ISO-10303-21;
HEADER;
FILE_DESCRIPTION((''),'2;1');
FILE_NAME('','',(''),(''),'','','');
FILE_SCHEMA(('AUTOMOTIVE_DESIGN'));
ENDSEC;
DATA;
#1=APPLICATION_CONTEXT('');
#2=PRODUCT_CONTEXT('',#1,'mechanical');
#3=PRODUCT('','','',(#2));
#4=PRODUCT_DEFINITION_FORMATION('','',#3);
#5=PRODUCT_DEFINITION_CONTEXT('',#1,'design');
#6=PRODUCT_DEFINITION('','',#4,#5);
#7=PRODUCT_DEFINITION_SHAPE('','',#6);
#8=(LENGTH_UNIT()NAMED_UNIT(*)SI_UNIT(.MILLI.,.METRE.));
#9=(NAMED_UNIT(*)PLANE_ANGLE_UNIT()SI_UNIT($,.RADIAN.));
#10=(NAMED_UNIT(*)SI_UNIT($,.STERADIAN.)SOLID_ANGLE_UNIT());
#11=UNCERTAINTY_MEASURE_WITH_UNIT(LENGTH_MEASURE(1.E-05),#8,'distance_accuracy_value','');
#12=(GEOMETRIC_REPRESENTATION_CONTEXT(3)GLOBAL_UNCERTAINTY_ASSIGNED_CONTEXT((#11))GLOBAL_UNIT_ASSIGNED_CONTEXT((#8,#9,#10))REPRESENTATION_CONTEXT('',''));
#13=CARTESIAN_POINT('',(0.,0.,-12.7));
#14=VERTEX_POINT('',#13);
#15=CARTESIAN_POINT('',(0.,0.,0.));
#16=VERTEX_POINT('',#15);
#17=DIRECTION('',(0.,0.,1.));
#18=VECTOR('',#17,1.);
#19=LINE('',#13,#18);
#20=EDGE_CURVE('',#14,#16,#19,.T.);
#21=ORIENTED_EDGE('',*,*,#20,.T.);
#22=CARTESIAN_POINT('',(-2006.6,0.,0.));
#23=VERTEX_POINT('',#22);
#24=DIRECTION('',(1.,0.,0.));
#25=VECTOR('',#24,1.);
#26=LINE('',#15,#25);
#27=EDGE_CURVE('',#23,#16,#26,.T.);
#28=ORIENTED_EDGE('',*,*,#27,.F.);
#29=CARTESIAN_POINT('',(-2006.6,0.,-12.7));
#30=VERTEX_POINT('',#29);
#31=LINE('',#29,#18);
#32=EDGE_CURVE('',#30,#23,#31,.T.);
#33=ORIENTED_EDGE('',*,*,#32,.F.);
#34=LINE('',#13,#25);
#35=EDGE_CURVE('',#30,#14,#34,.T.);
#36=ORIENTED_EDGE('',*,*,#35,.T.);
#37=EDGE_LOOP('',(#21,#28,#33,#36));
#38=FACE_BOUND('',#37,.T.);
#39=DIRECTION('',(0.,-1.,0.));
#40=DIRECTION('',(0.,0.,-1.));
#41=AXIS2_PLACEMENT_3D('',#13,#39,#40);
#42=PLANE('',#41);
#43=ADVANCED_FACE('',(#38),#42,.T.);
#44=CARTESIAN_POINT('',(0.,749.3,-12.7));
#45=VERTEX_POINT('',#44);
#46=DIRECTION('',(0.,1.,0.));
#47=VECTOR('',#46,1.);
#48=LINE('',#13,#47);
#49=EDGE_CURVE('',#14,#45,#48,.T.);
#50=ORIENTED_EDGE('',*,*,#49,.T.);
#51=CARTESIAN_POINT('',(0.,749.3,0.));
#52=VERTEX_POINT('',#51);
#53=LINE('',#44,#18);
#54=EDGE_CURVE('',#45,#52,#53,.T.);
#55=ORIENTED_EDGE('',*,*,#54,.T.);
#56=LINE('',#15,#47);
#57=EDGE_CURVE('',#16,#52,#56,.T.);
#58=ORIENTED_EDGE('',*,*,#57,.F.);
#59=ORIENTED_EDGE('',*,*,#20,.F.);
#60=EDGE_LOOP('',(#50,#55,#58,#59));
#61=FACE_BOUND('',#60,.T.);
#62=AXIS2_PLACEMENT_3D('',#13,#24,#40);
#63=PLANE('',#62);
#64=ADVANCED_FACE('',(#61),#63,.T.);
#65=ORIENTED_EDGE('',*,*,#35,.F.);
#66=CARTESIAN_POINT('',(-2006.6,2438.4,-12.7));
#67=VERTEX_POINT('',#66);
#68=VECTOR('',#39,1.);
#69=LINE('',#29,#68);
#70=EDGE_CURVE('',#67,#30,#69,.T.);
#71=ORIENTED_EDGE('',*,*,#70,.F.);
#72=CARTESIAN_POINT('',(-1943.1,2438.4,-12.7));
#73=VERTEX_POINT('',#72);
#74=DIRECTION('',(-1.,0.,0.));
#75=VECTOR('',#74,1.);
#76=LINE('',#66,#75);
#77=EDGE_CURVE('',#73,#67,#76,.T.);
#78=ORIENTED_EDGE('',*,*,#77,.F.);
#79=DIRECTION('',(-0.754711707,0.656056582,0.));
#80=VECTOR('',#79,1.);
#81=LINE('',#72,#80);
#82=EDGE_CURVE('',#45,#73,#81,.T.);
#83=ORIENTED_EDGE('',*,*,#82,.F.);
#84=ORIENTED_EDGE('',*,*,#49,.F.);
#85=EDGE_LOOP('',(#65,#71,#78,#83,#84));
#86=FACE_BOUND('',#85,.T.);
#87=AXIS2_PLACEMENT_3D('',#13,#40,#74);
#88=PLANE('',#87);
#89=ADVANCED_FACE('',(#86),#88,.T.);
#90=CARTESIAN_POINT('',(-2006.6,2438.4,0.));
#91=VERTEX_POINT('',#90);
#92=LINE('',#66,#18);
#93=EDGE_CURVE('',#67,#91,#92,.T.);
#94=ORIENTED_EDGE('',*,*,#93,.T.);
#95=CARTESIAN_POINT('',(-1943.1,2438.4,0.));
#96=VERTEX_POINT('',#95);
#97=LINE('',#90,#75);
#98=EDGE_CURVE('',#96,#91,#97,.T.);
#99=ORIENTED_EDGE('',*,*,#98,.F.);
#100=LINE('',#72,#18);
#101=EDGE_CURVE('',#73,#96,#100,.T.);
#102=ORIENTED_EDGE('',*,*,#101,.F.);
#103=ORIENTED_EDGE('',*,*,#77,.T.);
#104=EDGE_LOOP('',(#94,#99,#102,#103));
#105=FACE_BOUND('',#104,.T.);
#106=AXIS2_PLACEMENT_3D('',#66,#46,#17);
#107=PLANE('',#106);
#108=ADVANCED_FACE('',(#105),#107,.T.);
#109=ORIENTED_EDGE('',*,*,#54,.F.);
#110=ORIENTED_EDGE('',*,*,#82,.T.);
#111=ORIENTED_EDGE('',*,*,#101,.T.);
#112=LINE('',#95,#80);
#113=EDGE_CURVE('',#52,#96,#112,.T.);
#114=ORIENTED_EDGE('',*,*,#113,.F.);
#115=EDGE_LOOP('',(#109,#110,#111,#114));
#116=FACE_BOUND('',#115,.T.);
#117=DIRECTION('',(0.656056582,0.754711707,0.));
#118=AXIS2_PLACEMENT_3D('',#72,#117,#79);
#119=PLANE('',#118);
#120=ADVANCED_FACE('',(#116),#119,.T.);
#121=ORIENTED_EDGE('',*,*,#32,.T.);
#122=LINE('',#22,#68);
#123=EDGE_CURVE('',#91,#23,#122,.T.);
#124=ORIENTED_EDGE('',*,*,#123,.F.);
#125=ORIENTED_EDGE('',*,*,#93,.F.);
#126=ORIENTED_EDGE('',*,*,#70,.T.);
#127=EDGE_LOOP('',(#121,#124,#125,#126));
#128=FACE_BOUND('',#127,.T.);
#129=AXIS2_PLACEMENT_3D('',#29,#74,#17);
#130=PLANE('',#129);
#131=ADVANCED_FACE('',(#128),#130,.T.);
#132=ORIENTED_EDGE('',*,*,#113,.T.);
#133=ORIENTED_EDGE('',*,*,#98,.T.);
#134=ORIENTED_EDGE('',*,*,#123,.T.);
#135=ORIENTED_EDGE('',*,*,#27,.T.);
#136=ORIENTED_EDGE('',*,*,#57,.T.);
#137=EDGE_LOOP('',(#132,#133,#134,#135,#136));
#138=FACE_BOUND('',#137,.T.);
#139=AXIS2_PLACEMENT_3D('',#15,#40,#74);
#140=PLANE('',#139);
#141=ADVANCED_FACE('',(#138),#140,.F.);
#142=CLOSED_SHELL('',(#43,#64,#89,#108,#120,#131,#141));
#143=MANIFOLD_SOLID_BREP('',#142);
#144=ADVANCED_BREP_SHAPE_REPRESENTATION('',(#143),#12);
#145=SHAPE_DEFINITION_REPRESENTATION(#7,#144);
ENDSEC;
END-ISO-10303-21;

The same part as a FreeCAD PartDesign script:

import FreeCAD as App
import Part
import Sketcher
Q = App.Units.Quantity

doc = App.newDocument("Part")
body = doc.addObject("PartDesign::Body", "Body")

sketch1 = doc.addObject("Sketcher::SketchObject", "Sketch")
body.addObject(sketch1)
sketch1.AttachmentSupport = (doc.XY_Plane, [""])
sketch1.MapMode = "FlatFace"
sketch1.addGeometry([
    Part.LineSegment(App.Vector(-2007, 0, 0), App.Vector(0, 0, 0)),
    Part.LineSegment(App.Vector(0, 0, 0), App.Vector(0, 749, 0)),
    Part.LineSegment(App.Vector(0, 749, 0), App.Vector(-1943, 2438, 0)),
    Part.LineSegment(App.Vector(-1943, 2438, 0), App.Vector(-2007, 2438, 0)),
    Part.LineSegment(App.Vector(-2007, 2438, 0), App.Vector(-2007, 0, 0)),
], False)
sketch1.addConstraint([
    Sketcher.Constraint("Coincident", 0, 2, 1, 1),
    Sketcher.Constraint("Coincident", 1, 2, 2, 1),
    Sketcher.Constraint("Coincident", 2, 2, 3, 1),
    Sketcher.Constraint("Coincident", 3, 2, 4, 1),
    Sketcher.Constraint("Coincident", 4, 2, 0, 1),
    Sketcher.Constraint("Horizontal", 0),
    Sketcher.Constraint("Vertical", 1),
    Sketcher.Constraint("Horizontal", 3),
    Sketcher.Constraint("Vertical", 4),
    Sketcher.Constraint("Coincident", 0, 2, -1, 1),
    Sketcher.Constraint("DistanceX", 0, 1, 0, 2, Q("79 in")),
    Sketcher.Constraint("DistanceY", 4, 2, 4, 1, Q("96 in")),
    Sketcher.Constraint("DistanceX", 3, 2, 3, 1, Q("2.5 in")),
    Sketcher.Constraint("DistanceY", 1, 1, 1, 2, Q("29.5 in")),
])
pad1 = doc.addObject("PartDesign::Pad", "Pad")
body.addObject(pad1)
pad1.Profile = sketch1
pad1.Length = Q("0.5 in")
pad1.Reversed = True

doc.recompute()
